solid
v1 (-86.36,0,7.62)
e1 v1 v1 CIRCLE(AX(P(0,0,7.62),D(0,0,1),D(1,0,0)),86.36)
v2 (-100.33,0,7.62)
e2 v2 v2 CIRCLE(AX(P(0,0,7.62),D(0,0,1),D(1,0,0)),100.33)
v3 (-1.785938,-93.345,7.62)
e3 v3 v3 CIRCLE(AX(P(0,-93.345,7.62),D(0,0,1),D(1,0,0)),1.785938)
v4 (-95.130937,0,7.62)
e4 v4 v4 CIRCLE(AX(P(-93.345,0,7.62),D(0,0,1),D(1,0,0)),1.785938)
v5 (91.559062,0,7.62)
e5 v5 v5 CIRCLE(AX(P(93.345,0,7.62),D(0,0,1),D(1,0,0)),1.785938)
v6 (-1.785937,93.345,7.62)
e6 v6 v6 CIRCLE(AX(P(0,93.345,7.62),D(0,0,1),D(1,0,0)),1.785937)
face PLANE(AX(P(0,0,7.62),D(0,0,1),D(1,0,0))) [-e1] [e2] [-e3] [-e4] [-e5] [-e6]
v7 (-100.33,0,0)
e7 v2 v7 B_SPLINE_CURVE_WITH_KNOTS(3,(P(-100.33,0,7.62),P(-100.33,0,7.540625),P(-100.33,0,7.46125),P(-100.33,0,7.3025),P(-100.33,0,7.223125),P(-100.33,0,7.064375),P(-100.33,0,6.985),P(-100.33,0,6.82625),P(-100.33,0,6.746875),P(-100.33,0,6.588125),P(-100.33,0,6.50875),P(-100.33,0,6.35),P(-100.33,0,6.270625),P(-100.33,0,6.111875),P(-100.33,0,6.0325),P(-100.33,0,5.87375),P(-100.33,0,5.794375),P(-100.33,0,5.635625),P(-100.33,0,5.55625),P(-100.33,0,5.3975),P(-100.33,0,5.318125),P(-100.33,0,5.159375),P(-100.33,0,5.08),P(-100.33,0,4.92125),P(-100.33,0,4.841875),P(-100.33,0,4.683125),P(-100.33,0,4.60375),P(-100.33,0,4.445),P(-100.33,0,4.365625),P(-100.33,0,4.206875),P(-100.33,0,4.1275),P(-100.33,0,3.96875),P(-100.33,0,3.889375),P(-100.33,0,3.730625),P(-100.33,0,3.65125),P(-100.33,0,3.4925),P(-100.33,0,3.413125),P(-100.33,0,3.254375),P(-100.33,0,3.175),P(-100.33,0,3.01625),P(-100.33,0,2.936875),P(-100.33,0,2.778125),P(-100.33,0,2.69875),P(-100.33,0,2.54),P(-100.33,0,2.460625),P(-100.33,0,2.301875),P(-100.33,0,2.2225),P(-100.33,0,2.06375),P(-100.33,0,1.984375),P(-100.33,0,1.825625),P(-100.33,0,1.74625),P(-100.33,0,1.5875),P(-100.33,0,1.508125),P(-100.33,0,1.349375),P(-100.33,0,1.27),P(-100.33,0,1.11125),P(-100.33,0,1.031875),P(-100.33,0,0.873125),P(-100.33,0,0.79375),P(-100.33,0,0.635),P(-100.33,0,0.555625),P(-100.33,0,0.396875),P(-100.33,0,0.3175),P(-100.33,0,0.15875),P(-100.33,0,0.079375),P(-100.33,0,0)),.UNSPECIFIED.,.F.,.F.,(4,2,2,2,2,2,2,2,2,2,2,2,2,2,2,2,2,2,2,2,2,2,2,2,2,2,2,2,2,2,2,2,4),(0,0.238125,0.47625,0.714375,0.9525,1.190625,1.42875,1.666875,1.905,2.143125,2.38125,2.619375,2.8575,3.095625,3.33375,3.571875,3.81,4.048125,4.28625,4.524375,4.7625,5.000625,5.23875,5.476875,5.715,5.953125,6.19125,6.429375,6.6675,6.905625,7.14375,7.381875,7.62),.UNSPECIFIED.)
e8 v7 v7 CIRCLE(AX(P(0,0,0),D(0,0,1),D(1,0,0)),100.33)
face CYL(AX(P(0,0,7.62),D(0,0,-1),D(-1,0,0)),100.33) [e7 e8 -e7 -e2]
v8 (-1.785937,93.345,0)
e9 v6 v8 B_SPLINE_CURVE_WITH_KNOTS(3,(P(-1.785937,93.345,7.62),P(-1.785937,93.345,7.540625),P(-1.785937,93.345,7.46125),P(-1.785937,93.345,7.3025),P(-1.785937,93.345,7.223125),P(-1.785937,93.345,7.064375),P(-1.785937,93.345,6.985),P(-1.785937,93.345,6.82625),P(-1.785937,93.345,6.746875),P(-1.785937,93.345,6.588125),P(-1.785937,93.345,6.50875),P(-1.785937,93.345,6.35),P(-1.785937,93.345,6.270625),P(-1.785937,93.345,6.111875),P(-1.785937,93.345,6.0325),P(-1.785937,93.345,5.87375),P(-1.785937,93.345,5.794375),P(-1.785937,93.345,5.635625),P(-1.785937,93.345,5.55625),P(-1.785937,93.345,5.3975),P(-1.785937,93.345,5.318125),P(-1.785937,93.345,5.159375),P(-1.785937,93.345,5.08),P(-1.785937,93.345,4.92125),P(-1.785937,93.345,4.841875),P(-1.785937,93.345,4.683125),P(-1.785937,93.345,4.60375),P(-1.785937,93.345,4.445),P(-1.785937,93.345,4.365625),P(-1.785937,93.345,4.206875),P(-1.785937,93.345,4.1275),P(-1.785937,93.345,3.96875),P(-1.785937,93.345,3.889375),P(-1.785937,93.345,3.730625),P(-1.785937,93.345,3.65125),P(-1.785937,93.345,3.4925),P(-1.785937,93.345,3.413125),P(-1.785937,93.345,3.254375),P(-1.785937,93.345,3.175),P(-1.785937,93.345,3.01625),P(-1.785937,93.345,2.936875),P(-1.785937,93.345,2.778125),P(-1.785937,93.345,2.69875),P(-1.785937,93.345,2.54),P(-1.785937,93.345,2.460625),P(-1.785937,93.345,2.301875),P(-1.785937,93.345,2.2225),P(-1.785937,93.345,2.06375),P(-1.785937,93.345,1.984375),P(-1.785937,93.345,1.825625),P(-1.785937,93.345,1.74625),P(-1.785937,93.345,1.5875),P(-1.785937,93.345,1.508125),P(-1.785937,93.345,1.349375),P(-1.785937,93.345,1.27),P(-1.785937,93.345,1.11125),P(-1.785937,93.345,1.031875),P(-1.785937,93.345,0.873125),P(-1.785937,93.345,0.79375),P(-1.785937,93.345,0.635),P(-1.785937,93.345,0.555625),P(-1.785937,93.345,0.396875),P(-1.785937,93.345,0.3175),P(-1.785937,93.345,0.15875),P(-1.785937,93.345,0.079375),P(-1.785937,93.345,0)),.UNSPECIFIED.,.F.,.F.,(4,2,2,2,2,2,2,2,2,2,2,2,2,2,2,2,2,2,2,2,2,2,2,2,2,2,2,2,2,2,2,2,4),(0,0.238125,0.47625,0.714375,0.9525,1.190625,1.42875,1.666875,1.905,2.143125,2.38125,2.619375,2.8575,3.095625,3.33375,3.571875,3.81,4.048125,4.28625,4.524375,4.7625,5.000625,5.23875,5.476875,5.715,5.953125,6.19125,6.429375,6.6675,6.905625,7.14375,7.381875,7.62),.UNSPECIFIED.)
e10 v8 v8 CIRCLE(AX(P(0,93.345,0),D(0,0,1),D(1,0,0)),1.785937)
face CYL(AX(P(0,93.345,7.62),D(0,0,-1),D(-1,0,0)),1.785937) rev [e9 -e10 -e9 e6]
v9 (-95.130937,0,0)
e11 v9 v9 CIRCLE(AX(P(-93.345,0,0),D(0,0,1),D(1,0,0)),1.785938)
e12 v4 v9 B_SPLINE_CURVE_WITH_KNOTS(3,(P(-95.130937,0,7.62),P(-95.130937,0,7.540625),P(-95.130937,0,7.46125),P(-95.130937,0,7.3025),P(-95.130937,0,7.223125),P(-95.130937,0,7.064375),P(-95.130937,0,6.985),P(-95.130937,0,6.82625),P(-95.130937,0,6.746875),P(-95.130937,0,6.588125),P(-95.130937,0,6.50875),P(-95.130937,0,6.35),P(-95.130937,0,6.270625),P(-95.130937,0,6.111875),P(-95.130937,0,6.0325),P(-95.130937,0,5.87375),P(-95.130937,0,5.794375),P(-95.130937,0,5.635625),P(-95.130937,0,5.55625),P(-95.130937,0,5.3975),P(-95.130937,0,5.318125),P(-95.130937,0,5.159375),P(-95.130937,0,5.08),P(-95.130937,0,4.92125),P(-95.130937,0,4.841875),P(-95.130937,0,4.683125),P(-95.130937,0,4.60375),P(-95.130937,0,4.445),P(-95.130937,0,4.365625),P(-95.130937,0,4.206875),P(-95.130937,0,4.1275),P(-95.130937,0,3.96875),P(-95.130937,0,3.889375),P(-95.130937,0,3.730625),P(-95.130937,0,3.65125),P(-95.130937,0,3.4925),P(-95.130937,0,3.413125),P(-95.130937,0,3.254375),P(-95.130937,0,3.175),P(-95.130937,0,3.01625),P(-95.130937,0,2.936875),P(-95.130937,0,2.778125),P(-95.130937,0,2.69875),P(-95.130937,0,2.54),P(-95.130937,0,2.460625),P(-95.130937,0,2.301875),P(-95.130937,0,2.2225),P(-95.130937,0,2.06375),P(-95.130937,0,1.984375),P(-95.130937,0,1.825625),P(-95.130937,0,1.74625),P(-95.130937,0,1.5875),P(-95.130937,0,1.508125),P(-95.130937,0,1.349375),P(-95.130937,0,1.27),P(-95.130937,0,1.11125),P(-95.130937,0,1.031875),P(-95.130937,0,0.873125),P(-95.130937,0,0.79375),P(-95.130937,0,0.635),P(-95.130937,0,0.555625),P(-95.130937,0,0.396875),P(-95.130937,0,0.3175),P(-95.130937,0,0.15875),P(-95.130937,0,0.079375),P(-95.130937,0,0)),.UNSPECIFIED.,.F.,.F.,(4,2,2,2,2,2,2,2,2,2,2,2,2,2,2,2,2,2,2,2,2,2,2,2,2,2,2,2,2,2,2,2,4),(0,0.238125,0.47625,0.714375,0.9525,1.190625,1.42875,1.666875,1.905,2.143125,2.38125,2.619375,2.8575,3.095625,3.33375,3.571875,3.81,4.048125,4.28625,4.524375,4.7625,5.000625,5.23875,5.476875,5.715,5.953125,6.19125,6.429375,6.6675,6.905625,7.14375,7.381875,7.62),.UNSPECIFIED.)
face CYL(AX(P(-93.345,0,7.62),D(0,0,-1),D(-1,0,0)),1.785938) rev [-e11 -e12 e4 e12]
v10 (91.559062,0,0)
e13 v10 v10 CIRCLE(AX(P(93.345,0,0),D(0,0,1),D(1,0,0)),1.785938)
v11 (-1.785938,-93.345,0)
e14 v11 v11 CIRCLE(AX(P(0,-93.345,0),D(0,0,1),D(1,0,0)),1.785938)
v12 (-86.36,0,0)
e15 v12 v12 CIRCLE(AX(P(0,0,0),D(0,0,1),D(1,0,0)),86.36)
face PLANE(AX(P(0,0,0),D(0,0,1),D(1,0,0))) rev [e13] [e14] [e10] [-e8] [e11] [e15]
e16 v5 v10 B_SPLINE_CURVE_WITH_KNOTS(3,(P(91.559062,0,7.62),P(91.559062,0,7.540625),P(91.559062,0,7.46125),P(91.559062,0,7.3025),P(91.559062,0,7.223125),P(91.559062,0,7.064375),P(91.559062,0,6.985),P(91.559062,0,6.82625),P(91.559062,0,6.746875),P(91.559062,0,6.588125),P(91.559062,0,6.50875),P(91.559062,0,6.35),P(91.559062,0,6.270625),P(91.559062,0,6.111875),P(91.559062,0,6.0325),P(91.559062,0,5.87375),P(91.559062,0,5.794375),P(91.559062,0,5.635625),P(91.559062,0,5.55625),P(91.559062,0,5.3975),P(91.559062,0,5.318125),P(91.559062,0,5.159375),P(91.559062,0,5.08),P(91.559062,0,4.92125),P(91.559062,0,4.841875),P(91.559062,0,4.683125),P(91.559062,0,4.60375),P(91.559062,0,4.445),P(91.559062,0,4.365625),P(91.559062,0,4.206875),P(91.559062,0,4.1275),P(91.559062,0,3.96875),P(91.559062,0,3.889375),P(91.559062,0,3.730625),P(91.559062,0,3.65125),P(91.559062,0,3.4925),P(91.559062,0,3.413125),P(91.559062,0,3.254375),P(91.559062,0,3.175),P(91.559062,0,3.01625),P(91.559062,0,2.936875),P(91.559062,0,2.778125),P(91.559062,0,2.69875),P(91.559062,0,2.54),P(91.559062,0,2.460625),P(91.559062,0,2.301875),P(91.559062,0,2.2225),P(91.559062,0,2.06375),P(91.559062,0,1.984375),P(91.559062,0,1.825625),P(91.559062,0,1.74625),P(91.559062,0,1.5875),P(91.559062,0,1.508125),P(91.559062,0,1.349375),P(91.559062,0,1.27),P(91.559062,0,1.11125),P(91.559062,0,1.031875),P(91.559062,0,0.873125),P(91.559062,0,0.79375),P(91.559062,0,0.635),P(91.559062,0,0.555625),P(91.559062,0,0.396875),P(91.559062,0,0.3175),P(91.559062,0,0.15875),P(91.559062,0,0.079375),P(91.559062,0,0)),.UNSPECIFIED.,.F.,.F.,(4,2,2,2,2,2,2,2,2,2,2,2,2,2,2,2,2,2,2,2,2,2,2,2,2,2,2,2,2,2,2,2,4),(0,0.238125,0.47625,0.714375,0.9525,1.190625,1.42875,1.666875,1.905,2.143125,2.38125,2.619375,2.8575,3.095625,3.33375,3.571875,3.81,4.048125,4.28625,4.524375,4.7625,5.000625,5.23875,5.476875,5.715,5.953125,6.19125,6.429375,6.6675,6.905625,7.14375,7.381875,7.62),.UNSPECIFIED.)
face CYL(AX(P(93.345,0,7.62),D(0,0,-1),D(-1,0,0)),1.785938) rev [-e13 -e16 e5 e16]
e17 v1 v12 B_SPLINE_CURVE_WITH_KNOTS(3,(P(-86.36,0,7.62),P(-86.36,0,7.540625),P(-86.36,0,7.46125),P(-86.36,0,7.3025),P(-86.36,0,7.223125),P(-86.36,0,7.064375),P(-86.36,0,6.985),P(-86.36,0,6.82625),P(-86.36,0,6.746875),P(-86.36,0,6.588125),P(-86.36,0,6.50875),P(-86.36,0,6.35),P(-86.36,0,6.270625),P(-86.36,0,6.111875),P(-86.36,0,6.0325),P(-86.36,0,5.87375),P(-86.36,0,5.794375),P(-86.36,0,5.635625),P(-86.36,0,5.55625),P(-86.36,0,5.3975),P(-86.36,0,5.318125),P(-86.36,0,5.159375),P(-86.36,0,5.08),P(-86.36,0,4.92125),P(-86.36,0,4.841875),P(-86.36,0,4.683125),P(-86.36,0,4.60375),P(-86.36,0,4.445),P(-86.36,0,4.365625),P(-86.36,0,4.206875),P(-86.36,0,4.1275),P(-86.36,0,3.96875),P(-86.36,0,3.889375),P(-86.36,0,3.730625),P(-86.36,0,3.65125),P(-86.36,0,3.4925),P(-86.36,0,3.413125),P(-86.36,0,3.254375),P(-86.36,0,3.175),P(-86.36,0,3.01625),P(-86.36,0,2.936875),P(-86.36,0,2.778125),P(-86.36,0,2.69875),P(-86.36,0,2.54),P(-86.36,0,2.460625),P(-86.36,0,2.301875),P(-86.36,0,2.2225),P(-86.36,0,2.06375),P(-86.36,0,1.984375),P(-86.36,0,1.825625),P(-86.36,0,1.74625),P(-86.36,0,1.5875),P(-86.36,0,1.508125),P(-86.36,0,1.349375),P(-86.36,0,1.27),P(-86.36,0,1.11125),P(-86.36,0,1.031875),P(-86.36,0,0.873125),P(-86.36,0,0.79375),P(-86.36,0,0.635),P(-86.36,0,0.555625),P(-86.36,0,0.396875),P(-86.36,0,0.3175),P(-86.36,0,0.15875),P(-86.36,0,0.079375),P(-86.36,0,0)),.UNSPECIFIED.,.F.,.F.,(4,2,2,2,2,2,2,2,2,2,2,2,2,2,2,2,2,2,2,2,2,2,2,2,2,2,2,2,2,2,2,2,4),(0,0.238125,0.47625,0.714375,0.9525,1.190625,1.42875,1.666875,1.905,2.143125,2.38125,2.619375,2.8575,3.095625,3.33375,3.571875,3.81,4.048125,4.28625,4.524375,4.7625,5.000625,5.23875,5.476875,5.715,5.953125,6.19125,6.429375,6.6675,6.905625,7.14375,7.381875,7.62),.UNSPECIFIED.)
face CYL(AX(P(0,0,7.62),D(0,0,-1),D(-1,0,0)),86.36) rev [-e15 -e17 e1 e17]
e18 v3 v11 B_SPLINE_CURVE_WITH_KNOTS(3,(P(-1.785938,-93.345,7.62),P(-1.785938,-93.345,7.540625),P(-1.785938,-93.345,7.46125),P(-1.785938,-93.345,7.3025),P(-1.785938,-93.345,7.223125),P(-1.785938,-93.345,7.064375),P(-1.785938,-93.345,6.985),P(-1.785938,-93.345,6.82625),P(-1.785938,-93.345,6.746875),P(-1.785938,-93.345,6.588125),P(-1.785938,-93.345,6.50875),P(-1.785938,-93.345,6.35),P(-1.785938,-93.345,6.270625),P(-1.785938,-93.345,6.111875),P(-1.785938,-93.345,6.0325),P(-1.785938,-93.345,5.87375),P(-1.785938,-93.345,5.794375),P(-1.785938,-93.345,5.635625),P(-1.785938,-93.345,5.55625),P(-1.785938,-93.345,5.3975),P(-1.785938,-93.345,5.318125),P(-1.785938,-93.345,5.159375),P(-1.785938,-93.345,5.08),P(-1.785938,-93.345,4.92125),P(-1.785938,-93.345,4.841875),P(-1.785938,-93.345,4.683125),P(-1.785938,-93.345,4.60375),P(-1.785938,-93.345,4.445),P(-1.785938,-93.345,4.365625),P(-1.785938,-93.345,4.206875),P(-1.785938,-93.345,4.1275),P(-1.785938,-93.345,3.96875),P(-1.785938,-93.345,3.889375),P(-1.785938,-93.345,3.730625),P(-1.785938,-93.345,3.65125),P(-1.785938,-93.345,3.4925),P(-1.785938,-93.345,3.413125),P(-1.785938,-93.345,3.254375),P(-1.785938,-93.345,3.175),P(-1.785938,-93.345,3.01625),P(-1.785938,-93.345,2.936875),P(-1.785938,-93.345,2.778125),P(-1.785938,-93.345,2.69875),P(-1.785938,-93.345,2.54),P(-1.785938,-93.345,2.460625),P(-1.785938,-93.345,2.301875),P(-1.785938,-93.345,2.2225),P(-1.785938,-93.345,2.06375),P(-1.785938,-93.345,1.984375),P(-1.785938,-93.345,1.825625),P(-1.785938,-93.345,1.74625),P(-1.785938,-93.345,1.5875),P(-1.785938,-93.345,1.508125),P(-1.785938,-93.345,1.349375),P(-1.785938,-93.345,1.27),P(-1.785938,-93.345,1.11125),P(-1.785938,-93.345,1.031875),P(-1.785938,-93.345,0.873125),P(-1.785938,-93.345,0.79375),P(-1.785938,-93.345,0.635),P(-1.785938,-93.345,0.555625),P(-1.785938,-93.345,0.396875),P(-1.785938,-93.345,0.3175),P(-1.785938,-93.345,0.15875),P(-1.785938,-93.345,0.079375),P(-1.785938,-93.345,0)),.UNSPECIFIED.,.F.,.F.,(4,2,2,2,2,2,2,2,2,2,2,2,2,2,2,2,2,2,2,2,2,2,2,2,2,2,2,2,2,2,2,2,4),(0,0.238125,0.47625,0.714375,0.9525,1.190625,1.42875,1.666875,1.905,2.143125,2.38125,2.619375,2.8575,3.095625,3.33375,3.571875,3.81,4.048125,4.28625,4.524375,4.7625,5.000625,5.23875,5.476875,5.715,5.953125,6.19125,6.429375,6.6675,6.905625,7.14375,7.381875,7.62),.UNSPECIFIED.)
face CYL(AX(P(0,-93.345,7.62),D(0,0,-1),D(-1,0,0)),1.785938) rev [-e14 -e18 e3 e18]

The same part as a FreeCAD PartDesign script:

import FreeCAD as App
import Part
import Sketcher

V = App.Vector
Q = App.Units.Quantity

doc = App.newDocument("Part")
params = doc.addObject("Spreadsheet::Sheet", "Params")
for row, (alias, value) in enumerate([
    ("sketch1_diameter", "7.9 in"),
    ("sketch1_diameter2", "6.8 in"),
    ("sketch1_diameter3", "0.140625 in"),
    ("pad1_length", "0.3 in"),
], start=1):
    params.set(f"A{row}", alias)
    params.set(f"B{row}", "=" + value)
    params.setAlias(f"B{row}", alias)

body = doc.addObject("PartDesign::Body", "Body")

# Sketch on XY plane
sketch1 = doc.addObject("Sketcher::SketchObject", "Sketch")
body.addObject(sketch1)
sketch1.AttachmentSupport = (doc.XY_Plane, [""])
sketch1.MapMode = "FlatFace"
sketch1.addGeometry([
    Part.Circle(V(0, 0, 0), V(0, 0, 1), 100.33),  # 0
    Part.Circle(V(93.345, 0, 0), V(0, 0, 1), 1.785937),  # 1
    Part.Circle(V(0, 93.345, 0), V(0, 0, 1), 1.785937),  # 2
    Part.Circle(V(0, -93.345, 0), V(0, 0, 1), 1.785937),  # 3
    Part.Circle(V(0, 0, 0), V(0, 0, 1), 86.36),  # 4
    Part.Circle(V(-93.345, 0, 0), V(0, 0, 1), 1.785937),  # 5
], False)
sketch1.addConstraint([
    Sketcher.Constraint("Coincident", 0, 3, -1, 1),
    Sketcher.Constraint("Coincident", 4, 3, -1, 1),
    Sketcher.Constraint("Equal", 1, 2),
    Sketcher.Constraint("Equal", 2, 3),
    Sketcher.Constraint("Equal", 3, 5),
    Sketcher.Constraint("Symmetric", 2, 3, 3, 3, -1, 1),
    Sketcher.Constraint("Symmetric", 1, 3, 5, 3, -1, 1),
    Sketcher.Constraint("PointOnObject", 1, 3, -1),
    Sketcher.Constraint("PointOnObject", 2, 3, -2),
    Sketcher.Constraint("Diameter", 0, Q("7.9 in")),
    Sketcher.Constraint("Diameter", 4, Q("6.8 in")),
    Sketcher.Constraint("Diameter", 1, Q("0.140625 in")),
    Sketcher.Constraint("DistanceY", 3, 3, 2, 3, Q("7.35 in")),
    Sketcher.Constraint("DistanceX", 5, 3, 1, 3, Q("7.35 in")),
])
sketch1.setExpression("Constraints[9]", "Params.sketch1_diameter")
sketch1.setExpression("Constraints[10]", "Params.sketch1_diameter2")
sketch1.setExpression("Constraints[11]", "Params.sketch1_diameter3")
pad1 = doc.addObject("PartDesign::Pad", "Pad")
body.addObject(pad1)
pad1.Profile = sketch1
pad1.setExpression("Length", "Params.pad1_length")

doc.recompute()
